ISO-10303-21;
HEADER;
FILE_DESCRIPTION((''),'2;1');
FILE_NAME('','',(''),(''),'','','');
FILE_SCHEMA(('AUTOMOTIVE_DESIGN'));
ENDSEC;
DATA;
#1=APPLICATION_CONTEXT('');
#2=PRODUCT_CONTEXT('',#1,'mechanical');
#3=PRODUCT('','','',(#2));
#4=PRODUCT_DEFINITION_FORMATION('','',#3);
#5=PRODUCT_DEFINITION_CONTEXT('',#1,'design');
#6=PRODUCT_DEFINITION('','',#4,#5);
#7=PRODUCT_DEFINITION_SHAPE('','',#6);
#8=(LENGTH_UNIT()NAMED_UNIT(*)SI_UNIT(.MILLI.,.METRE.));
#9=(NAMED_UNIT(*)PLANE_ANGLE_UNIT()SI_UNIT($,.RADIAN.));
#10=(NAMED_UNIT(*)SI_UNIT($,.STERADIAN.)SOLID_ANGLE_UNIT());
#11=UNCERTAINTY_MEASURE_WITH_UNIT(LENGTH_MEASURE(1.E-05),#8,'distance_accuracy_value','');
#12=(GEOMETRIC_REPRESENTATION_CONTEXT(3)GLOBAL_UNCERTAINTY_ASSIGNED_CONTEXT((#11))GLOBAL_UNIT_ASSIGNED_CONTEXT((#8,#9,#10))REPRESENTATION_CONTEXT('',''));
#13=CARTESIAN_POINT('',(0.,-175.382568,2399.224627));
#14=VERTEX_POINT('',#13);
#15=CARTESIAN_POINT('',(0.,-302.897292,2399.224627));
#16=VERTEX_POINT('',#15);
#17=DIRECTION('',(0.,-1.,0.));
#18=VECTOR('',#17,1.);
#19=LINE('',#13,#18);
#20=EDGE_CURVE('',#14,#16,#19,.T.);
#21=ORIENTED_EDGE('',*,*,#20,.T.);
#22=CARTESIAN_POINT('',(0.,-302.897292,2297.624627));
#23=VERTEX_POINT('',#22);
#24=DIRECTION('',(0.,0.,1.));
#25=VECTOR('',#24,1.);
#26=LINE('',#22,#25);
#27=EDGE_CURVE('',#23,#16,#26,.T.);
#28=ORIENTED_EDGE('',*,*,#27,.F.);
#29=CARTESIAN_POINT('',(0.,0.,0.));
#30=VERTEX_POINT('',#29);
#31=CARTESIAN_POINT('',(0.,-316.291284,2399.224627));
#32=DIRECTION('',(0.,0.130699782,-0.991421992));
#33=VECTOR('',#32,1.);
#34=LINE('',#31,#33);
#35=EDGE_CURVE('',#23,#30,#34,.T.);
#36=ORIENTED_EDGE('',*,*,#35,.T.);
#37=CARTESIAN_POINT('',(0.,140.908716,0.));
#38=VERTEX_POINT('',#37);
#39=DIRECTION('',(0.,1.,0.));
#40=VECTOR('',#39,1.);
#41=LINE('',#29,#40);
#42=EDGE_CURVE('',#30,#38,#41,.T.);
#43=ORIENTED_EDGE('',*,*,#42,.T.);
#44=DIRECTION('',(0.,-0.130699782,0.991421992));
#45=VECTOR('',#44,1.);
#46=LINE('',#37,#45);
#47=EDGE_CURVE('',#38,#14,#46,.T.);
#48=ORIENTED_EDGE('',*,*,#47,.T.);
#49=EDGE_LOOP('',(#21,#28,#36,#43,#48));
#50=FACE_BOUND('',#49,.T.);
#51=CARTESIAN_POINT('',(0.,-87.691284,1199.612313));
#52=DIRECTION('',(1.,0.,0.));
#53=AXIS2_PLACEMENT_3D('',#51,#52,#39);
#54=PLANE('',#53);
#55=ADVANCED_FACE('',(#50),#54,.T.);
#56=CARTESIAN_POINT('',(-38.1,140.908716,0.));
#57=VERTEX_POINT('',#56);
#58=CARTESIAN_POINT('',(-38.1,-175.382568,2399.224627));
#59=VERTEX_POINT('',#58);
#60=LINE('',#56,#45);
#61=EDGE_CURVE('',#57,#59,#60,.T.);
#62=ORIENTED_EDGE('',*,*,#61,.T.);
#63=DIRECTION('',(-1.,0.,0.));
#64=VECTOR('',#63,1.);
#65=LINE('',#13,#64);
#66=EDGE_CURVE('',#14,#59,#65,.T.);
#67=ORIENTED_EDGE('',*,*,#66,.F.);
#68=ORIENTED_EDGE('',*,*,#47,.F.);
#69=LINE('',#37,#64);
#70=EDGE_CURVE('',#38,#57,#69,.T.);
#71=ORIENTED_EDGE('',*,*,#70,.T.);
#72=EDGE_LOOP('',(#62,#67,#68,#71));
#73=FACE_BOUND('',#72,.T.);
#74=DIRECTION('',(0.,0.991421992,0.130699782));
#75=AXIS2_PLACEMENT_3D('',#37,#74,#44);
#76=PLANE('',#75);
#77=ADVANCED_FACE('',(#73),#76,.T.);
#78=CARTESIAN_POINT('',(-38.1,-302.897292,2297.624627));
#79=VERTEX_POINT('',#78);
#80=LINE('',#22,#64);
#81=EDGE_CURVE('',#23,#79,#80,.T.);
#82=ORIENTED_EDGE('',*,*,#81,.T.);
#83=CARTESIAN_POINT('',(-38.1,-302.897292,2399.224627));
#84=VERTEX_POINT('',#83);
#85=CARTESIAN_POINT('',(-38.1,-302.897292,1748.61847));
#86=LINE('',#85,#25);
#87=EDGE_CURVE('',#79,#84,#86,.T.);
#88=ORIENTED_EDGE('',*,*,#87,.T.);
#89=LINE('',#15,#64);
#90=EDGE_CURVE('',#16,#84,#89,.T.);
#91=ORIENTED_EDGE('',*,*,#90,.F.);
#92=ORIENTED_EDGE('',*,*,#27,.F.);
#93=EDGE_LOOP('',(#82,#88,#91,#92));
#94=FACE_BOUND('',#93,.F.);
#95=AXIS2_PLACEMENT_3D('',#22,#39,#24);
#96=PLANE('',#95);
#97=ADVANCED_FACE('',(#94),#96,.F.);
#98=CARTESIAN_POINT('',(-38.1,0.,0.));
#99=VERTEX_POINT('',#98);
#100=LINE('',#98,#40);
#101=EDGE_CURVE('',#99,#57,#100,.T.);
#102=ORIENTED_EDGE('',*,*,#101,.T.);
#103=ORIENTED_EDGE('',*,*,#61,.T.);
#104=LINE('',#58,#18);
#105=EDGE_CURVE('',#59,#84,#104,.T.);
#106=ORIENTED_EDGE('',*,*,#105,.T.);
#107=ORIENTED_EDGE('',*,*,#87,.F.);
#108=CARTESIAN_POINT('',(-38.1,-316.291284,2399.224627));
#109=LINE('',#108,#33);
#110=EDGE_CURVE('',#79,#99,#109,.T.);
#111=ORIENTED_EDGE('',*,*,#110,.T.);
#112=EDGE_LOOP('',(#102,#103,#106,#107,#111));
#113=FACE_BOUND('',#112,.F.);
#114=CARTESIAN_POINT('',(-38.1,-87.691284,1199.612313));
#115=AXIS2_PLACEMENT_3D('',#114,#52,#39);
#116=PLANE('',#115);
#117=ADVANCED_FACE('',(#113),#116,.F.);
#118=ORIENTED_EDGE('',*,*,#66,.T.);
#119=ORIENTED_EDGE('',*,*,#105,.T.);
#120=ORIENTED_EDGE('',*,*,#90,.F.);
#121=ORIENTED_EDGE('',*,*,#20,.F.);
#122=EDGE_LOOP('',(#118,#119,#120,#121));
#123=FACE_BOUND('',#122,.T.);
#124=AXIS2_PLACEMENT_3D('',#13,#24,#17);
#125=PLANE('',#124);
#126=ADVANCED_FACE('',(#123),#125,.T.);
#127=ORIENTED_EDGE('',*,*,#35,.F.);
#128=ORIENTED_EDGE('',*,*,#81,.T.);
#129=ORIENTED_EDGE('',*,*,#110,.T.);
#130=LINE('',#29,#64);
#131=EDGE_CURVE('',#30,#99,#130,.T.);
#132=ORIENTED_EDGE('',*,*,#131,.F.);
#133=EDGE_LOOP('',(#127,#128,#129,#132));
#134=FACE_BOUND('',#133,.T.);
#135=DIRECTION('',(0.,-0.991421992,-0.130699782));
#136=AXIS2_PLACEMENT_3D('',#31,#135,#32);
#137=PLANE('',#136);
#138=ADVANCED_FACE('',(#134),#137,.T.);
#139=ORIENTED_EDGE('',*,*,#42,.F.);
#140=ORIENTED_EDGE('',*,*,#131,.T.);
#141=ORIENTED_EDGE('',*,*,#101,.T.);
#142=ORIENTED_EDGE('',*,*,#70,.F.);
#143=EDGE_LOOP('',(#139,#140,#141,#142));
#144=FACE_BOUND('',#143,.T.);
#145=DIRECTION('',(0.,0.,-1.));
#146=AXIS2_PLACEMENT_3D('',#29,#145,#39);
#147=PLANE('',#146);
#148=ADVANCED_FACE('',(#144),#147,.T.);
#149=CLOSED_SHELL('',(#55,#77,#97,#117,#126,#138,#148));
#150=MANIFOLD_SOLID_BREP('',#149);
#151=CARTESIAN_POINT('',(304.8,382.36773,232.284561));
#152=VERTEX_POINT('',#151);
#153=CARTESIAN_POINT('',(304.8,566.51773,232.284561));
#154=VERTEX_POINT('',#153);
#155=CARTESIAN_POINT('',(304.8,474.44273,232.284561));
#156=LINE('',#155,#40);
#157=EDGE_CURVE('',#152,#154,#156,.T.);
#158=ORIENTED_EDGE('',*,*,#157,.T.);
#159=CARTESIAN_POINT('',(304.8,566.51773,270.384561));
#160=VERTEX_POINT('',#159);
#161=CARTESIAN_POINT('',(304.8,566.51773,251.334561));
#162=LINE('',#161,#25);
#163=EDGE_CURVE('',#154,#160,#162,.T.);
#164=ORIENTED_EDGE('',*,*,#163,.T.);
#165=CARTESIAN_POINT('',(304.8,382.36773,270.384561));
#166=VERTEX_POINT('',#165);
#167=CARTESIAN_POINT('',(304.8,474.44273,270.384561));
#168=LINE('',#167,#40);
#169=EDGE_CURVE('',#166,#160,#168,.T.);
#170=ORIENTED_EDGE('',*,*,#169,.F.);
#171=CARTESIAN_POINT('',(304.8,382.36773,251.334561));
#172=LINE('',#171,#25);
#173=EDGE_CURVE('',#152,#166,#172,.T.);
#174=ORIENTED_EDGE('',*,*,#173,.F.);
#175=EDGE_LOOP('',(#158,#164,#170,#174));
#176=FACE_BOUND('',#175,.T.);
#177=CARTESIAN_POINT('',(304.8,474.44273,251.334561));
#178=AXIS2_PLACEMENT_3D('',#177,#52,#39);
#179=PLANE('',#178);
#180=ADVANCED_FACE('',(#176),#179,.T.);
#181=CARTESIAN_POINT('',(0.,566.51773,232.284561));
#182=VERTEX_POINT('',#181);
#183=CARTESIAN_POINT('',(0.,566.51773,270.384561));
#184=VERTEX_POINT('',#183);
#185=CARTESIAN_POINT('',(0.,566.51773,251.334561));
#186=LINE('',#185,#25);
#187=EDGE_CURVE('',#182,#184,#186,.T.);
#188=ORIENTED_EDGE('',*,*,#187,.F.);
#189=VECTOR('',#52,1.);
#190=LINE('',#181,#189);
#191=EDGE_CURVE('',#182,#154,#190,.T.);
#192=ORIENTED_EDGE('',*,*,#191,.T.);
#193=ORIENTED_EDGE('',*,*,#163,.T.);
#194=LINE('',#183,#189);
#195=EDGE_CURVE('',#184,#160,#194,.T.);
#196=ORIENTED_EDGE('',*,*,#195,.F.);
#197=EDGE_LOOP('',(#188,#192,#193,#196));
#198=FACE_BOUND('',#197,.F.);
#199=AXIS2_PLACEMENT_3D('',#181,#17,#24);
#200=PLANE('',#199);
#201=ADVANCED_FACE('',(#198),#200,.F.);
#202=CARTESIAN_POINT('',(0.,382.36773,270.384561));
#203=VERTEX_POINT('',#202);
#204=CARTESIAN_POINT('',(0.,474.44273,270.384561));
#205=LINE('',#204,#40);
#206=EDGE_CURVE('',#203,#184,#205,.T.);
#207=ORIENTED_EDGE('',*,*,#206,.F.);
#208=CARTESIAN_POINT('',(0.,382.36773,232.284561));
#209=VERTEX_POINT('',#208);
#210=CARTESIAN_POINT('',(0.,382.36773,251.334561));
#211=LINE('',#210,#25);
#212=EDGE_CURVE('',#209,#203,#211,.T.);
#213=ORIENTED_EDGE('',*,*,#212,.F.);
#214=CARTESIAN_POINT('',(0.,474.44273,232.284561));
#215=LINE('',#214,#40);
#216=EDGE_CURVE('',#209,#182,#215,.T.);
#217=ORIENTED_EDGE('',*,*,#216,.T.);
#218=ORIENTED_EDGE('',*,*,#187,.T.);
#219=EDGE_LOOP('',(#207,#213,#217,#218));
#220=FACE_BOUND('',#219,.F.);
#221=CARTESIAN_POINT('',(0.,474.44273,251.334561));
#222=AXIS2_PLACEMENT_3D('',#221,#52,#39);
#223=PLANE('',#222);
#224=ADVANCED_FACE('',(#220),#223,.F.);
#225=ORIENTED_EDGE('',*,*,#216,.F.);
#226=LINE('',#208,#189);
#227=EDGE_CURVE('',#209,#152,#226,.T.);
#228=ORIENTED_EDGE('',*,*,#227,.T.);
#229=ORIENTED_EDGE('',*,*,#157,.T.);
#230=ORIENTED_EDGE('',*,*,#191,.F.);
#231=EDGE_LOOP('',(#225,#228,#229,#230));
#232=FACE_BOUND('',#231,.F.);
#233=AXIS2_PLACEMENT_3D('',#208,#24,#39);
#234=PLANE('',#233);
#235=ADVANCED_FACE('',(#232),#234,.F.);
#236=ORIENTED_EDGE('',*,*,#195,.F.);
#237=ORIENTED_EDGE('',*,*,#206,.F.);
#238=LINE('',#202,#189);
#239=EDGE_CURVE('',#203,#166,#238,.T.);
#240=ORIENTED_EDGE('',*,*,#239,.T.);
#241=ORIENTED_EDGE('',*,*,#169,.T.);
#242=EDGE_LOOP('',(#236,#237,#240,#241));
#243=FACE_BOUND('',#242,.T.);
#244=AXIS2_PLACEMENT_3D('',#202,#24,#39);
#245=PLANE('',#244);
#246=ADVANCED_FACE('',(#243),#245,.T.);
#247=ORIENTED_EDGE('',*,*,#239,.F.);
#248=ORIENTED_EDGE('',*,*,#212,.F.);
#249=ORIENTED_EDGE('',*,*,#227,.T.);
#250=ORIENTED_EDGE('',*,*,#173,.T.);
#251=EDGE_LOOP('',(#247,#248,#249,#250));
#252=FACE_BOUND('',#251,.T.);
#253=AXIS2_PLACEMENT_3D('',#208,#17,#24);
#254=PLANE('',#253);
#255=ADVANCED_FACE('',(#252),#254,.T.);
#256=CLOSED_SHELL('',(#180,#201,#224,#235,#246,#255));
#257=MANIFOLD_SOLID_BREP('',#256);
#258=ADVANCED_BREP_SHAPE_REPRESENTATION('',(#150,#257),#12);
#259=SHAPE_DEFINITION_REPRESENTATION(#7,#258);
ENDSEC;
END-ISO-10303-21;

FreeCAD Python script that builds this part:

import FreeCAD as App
import Part
import Sketcher

V = App.Vector
Q = App.Units.Quantity


def add_polygon(sketch, points):
    """Adds a closed chain of lines whose ends are joined by coincident constraints."""
    first, n = sketch.GeometryCount, len(points)
    for a, b in zip(points, points[1:] + points[:1]):
        sketch.addGeometry(Part.LineSegment(App.Vector(*a, 0), App.Vector(*b, 0)), False)
    for i in range(n):
        sketch.addConstraint(Sketcher.Constraint("Coincident", first + i, 2, first + (i + 1) % n, 1))

doc = App.newDocument("Part")
body = doc.addObject("PartDesign::Body", "Body")

sketch1 = body.newObject("Sketcher::SketchObject", "Sketch")
sketch1.AttachmentSupport = (doc.getObject("YZ_Plane"), [""])
sketch1.MapMode = "FlatFace"
add_polygon(sketch1, [(-175, 2399), (-316, 2399), (0, 0), (141, 0)])
sketch1.addConstraint([
    Sketcher.Constraint("Horizontal", 0),
    Sketcher.Constraint("Horizontal", 2),
    Sketcher.Constraint("Coincident", 1, 2, -1, 1),
    Sketcher.Constraint("Parallel", 1, 3),
    Sketcher.Constraint("DistanceX", 0, 2, 2, 2, Q("18 in")),
    Sketcher.Constraint("Distance", 1, 2419.983262),
    Sketcher.Constraint("DistanceX", 0, 2, 0, 1, 140.908716),
])
pad1 = body.newObject("PartDesign::Pad", "Pad")
pad1.Profile = sketch1
pad1.Length = Q("1.5 in")
pad1.Reversed = True

sketch2 = body.newObject("Sketcher::SketchObject", "Sketch001")
sketch2.AttachmentSupport = (doc.getObject("YZ_Plane"), [""])
sketch2.MapMode = "FlatFace"
add_polygon(sketch2, [(-303, 2399), (-316, 2399), (-303, 2298)])
sketch2.addConstraint([
    Sketcher.Constraint("Horizontal", 0),
    Sketcher.Constraint("Vertical", 2),
    Sketcher.Constraint("DistanceY", 2, 1, 2, 2, Q("4 in")),
    Sketcher.Constraint("DistanceX", 0, 2, 0, 1, 13.393992),
    Sketcher.Constraint("DistanceX", 0, 2, -1, 1, 316.291284),
    Sketcher.Constraint("DistanceY", -1, 1, 0, 2, 2399.224627),
])
pocket1 = body.newObject("PartDesign::Pocket", "Pocket")
pocket1.Profile = sketch2
pocket1.Type = "ThroughAll"
body2 = doc.addObject("PartDesign::Body", "Body001")

sketch3 = body2.newObject("Sketcher::SketchObject", "Sketch002")
sketch3.AttachmentSupport = (doc.getObject("YZ_Plane001"), [""])
sketch3.MapMode = "FlatFace"
add_polygon(sketch3, [(382, 270), (382, 232), (567, 232), (567, 270)])
sketch3.addConstraint([
    Sketcher.Constraint("Vertical", 0),
    Sketcher.Constraint("Horizontal", 1),
    Sketcher.Constraint("Vertical", 2),
    Sketcher.Constraint("Horizontal", 3),
    Sketcher.Constraint("DistanceY", 0, 2, 0, 1, Q("1.5 in")),
    Sketcher.Constraint("DistanceX", 1, 1, 1, 2, Q("7.25 in")),
    Sketcher.Constraint("DistanceX", -1, 1, 0, 2, 382.36773),
    Sketcher.Constraint("DistanceY", -1, 1, 0, 2, 232.284561),
])
pad2 = body2.newObject("PartDesign::Pad", "Pad001")
pad2.Profile = sketch3
pad2.Length = Q("12 in")

doc.recompute()
